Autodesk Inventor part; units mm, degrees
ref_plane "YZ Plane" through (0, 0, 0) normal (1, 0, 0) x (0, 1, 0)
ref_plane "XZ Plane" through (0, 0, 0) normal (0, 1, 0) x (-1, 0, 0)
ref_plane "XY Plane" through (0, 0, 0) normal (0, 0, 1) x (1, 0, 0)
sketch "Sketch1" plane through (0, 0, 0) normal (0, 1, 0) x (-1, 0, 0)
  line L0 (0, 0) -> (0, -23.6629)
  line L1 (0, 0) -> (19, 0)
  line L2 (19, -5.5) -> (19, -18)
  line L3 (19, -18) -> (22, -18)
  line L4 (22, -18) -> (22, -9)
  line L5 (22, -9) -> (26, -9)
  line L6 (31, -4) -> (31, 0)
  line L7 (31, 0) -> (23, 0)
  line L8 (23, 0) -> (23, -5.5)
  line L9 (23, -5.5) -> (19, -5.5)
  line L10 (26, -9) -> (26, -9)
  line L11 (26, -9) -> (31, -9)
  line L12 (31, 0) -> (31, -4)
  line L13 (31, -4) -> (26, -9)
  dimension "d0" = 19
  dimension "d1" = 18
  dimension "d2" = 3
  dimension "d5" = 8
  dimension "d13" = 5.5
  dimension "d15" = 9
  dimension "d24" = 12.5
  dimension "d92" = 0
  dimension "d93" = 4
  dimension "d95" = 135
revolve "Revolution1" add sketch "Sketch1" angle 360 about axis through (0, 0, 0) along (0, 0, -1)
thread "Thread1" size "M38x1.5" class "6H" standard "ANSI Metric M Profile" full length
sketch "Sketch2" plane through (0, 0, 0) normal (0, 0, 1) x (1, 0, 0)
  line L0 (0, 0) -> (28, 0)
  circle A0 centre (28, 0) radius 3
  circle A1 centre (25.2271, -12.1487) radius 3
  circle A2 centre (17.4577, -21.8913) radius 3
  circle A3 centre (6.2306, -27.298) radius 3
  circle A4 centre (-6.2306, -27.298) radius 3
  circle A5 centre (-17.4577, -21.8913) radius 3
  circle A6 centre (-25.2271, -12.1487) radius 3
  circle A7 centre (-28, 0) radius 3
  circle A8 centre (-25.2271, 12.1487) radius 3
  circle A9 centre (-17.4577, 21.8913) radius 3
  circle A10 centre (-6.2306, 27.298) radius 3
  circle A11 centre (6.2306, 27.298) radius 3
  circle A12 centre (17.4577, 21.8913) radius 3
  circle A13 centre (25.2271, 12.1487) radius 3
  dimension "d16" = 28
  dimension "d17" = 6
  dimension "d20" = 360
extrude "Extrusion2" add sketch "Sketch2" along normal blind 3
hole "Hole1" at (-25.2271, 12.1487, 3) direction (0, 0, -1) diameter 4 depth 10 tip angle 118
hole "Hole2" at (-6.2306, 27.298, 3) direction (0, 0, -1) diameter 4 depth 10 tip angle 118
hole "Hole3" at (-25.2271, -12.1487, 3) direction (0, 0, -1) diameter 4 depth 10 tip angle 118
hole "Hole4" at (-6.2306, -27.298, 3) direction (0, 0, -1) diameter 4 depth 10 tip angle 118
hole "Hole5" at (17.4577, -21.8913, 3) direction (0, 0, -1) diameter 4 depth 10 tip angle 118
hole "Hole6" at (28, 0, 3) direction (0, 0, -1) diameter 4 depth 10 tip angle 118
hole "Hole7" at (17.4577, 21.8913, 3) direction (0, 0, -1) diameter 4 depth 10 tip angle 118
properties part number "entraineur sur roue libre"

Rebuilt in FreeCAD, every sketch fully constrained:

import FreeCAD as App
import Part
import Sketcher

V = App.Vector
Q = App.Units.Quantity

doc = App.newDocument("Part")
body = doc.addObject("PartDesign::Body", "Body")

sketch1 = body.newObject("Sketcher::SketchObject", "Sketch")
sketch1.AttachmentSupport = (doc.getObject("XZ_Plane"), [""])
sketch1.MapMode = "FlatFace"
sketch1.addGeometry(Part.LineSegment(V(-23, -5.5, 0), V(-19, -5.5, 0)), False)
sketch1.addGeometry(Part.LineSegment(V(-19, -5.5, 0), V(-19, -18, 0)), False)
sketch1.addGeometry(Part.LineSegment(V(-19, -18, 0), V(-22, -18, 0)), False)
sketch1.addGeometry(Part.LineSegment(V(-22, -18, 0), V(-22, -9, 0)), False)
sketch1.addGeometry(Part.LineSegment(V(-22, -9, 0), V(-26, -9, 0)), False)
sketch1.addGeometry(Part.LineSegment(V(-26, -9, 0), V(-31, -4, 0)), False)
sketch1.addGeometry(Part.LineSegment(V(-31, -4, 0), V(-31, 0, 0)), False)
sketch1.addGeometry(Part.LineSegment(V(-31, 0, 0), V(-23, 0, 0)), False)
sketch1.addGeometry(Part.LineSegment(V(-23, 0, 0), V(-23, -5.5, 0)), False)
sketch1.addConstraint(Sketcher.Constraint("Coincident", 0, 2, 1, 1))
sketch1.addConstraint(Sketcher.Constraint("Coincident", 1, 2, 2, 1))
sketch1.addConstraint(Sketcher.Constraint("Coincident", 2, 2, 3, 1))
sketch1.addConstraint(Sketcher.Constraint("Coincident", 3, 2, 4, 1))
sketch1.addConstraint(Sketcher.Constraint("Coincident", 4, 2, 5, 1))
sketch1.addConstraint(Sketcher.Constraint("Coincident", 5, 2, 6, 1))
sketch1.addConstraint(Sketcher.Constraint("Coincident", 6, 2, 7, 1))
sketch1.addConstraint(Sketcher.Constraint("Coincident", 7, 2, 8, 1))
sketch1.addConstraint(Sketcher.Constraint("Coincident", 8, 2, 0, 1))
sketch1.addConstraint(Sketcher.Constraint("Horizontal", 0))
sketch1.addConstraint(Sketcher.Constraint("Vertical", 1))
sketch1.addConstraint(Sketcher.Constraint("Horizontal", 2))
sketch1.addConstraint(Sketcher.Constraint("Vertical", 3))
sketch1.addConstraint(Sketcher.Constraint("Horizontal", 4))
sketch1.addConstraint(Sketcher.Constraint("Vertical", 6))
sketch1.addConstraint(Sketcher.Constraint("Horizontal", 7))
sketch1.addConstraint(Sketcher.Constraint("Vertical", 8))
sketch1.addConstraint(Sketcher.Constraint("PointOnObject", 6, 2, -1))
sketch1.addConstraint(Sketcher.Constraint("Equal", 0, 4))
sketch1.addConstraint(Sketcher.Constraint("Equal", 4, 6))
sketch1.addConstraint(Sketcher.Constraint("DistanceX", 0, 1, 0, 2, Q("4 mm")))
sketch1.addConstraint(Sketcher.Constraint("DistanceX", 2, 2, 2, 1, Q("3 mm")))
sketch1.addConstraint(Sketcher.Constraint("DistanceX", 7, 1, 7, 2, Q("8 mm")))
sketch1.addConstraint(Sketcher.Constraint("DistanceY", 3, 1, 3, 2, Q("9 mm")))
sketch1.addConstraint(Sketcher.Constraint("Angle", 5, Q("135 deg")))
sketch1.addConstraint(Sketcher.Constraint("DistanceY", 1, 2, 1, 1, Q("12.5 mm")))
sketch1.addConstraint(Sketcher.Constraint("DistanceX", 0, 2, -1, 1, Q("19 mm")))
revolution = body.newObject("PartDesign::Revolution", "Revolution")
revolution.Profile = sketch1
revolution.ReferenceAxis = (sketch1, ["V_Axis"])
revolution.Angle = 360

sketch2 = body.newObject("Sketcher::SketchObject", "Sketch001")
sketch2.AttachmentSupport = (doc.getObject("XY_Plane"), [""])
sketch2.MapMode = "FlatFace"
sketch2.addGeometry(Part.Circle(V(28, 0, 0), V(0, 0, 1), 3), False)
sketch2.addGeometry(Part.Circle(V(25.2271, -12.1487, 0), V(0, 0, 1), 3), False)
sketch2.addGeometry(Part.Circle(V(17.4577, -21.8913, 0), V(0, 0, 1), 3), False)
sketch2.addGeometry(Part.Circle(V(6.2306, -27.298, 0), V(0, 0, 1), 3), False)
sketch2.addGeometry(Part.Circle(V(-6.2306, -27.298, 0), V(0, 0, 1), 3), False)
sketch2.addGeometry(Part.Circle(V(-17.4577, -21.8913, 0), V(0, 0, 1), 3), False)
sketch2.addGeometry(Part.Circle(V(-25.2271, -12.1487, 0), V(0, 0, 1), 3), False)
sketch2.addGeometry(Part.Circle(V(-28, 0, 0), V(0, 0, 1), 3), False)
sketch2.addGeometry(Part.Circle(V(-25.2271, 12.1487, 0), V(0, 0, 1), 3), False)
sketch2.addGeometry(Part.Circle(V(-17.4577, 21.8913, 0), V(0, 0, 1), 3), False)
sketch2.addGeometry(Part.Circle(V(-6.2306, 27.298, 0), V(0, 0, 1), 3), False)
sketch2.addGeometry(Part.Circle(V(6.2306, 27.298, 0), V(0, 0, 1), 3), False)
sketch2.addGeometry(Part.Circle(V(17.4577, 21.8913, 0), V(0, 0, 1), 3), False)
sketch2.addGeometry(Part.Circle(V(25.2271, 12.1487, 0), V(0, 0, 1), 3), False)
sketch2.addConstraint(Sketcher.Constraint("Equal", 0, 1))
sketch2.addConstraint(Sketcher.Constraint("Equal", 1, 2))
sketch2.addConstraint(Sketcher.Constraint("Equal", 2, 3))
sketch2.addConstraint(Sketcher.Constraint("Equal", 3, 4))
sketch2.addConstraint(Sketcher.Constraint("Equal", 4, 5))
sketch2.addConstraint(Sketcher.Constraint("Equal", 5, 6))
sketch2.addConstraint(Sketcher.Constraint("Equal", 6, 7))
sketch2.addConstraint(Sketcher.Constraint("Equal", 7, 8))
sketch2.addConstraint(Sketcher.Constraint("Equal", 8, 9))
sketch2.addConstraint(Sketcher.Constraint("Equal", 9, 10))
sketch2.addConstraint(Sketcher.Constraint("Equal", 10, 11))
sketch2.addConstraint(Sketcher.Constraint("Equal", 11, 12))
sketch2.addConstraint(Sketcher.Constraint("Equal", 12, 13))
sketch2.addConstraint(Sketcher.Constraint("Symmetric", 0, 3, 7, 3, -1, 1))
sketch2.addConstraint(Sketcher.Constraint("Symmetric", 1, 3, 8, 3, -1, 1))
sketch2.addConstraint(Sketcher.Constraint("Symmetric", 2, 3, 9, 3, -1, 1))
sketch2.addConstraint(Sketcher.Constraint("Symmetric", 3, 3, 10, 3, -1, 1))
sketch2.addConstraint(Sketcher.Constraint("Symmetric", 4, 3, 11, 3, -1, 1))
sketch2.addConstraint(Sketcher.Constraint("Symmetric", 5, 3, 12, 3, -1, 1))
sketch2.addConstraint(Sketcher.Constraint("Symmetric", 6, 3, 13, 3, -1, 1))
sketch2.addConstraint(Sketcher.Constraint("Symmetric", 3, 3, 4, 3, -2))
sketch2.addConstraint(Sketcher.Constraint("Symmetric", 2, 3, 5, 3, -2))
sketch2.addConstraint(Sketcher.Constraint("Symmetric", 1, 3, 6, 3, -2))
sketch2.addConstraint(Sketcher.Constraint("PointOnObject", 0, 3, -1))
sketch2.addConstraint(Sketcher.Constraint("Diameter", 0, Q("6 mm")))
sketch2.addConstraint(Sketcher.Constraint("DistanceX", -1, 1, 0, 3, Q("28 mm")))
sketch2.addConstraint(Sketcher.Constraint("DistanceY", 5, 3, 8, 3, Q("34.04 mm")))
sketch2.addConstraint(Sketcher.Constraint("DistanceX", -1, 1, 1, 3, Q("25.227 mm")))
sketch2.addConstraint(Sketcher.Constraint("DistanceY", 3, 3, -1, 1, Q("27.298 mm")))
sketch2.addConstraint(Sketcher.Constraint("DistanceX", 3, 3, 2, 3, Q("11.227 mm")))
sketch2.addConstraint(Sketcher.Constraint("DistanceY", 1, 3, -1, 1, Q("12.1487 mm")))
sketch2.addConstraint(Sketcher.Constraint("DistanceX", -1, 1, 2, 3, Q("17.4577 mm")))
pad1 = body.newObject("PartDesign::Pad", "Pad")
pad1.Profile = sketch2
pad1.Length = 3

sketch3 = body.newObject("Sketcher::SketchObject", "Sketch002")
sketch3.AttachmentSupport = (doc.getObject("XY_Plane"), [""])
sketch3.MapMode = "FlatFace"
sketch3.AttachmentOffset = App.Placement(V(0, 0, 3), App.Rotation())
sketch3.addGeometry(Part.Circle(V(-25.2271, 12.1487, 0), V(0, 0, 1), 2), False)
sketch3.addConstraint(Sketcher.Constraint("Diameter", 0, Q("4 mm")))
sketch3.addConstraint(Sketcher.Constraint("DistanceX", 0, 3, -1, 1, Q("25.227 mm")))
sketch3.addConstraint(Sketcher.Constraint("DistanceY", -1, 1, 0, 3, Q("12.1487 mm")))
doc.recompute()
hole = body.newObject("PartDesign::Hole", "Hole")
hole.Profile = sketch3
hole.ThreadType = "None"
hole.Diameter = 4
hole.DepthType = "Dimension"
hole.Depth = 10
hole.DrillPoint = "Angled"
hole.DrillPointAngle = 118

sketch4 = body.newObject("Sketcher::SketchObject", "Sketch003")
sketch4.AttachmentSupport = (doc.getObject("XY_Plane"), [""])
sketch4.MapMode = "FlatFace"
sketch4.AttachmentOffset = App.Placement(V(0, 0, 3), App.Rotation())
sketch4.addGeometry(Part.Circle(V(-6.2306, 27.298, 0), V(0, 0, 1), 2), False)
sketch4.addConstraint(Sketcher.Constraint("Diameter", 0, Q("4 mm")))
sketch4.addConstraint(Sketcher.Constraint("DistanceY", -1, 1, 0, 3, Q("27.298 mm")))
sketch4.addConstraint(Sketcher.Constraint("DistanceX", 0, 3, -1, 1, Q("6.2306 mm")))
doc.recompute()
hole2 = body.newObject("PartDesign::Hole", "Hole001")
hole2.Profile = sketch4
hole2.ThreadType = "None"
hole2.Diameter = 4
hole2.DepthType = "Dimension"
hole2.Depth = 10
hole2.DrillPoint = "Angled"
hole2.DrillPointAngle = 118

sketch5 = body.newObject("Sketcher::SketchObject", "Sketch004")
sketch5.AttachmentSupport = (doc.getObject("XY_Plane"), [""])
sketch5.MapMode = "FlatFace"
sketch5.AttachmentOffset = App.Placement(V(0, 0, 3), App.Rotation())
sketch5.addGeometry(Part.Circle(V(-25.2271, -12.1487, 0), V(0, 0, 1), 2), False)
sketch5.addConstraint(Sketcher.Constraint("Diameter", 0, Q("4 mm")))
sketch5.addConstraint(Sketcher.Constraint("DistanceX", 0, 3, -1, 1, Q("25.227 mm")))
sketch5.addConstraint(Sketcher.Constraint("DistanceY", 0, 3, -1, 1, Q("12.1487 mm")))
doc.recompute()
hole3 = body.newObject("PartDesign::Hole", "Hole002")
hole3.Profile = sketch5
hole3.ThreadType = "None"
hole3.Diameter = 4
hole3.DepthType = "Dimension"
hole3.Depth = 10
hole3.DrillPoint = "Angled"
hole3.DrillPointAngle = 118

sketch6 = body.newObject("Sketcher::SketchObject", "Sketch005")
sketch6.AttachmentSupport = (doc.getObject("XY_Plane"), [""])
sketch6.MapMode = "FlatFace"
sketch6.AttachmentOffset = App.Placement(V(0, 0, 3), App.Rotation())
sketch6.addGeometry(Part.Circle(V(-6.2306, -27.298, 0), V(0, 0, 1), 2), False)
sketch6.addConstraint(Sketcher.Constraint("Diameter", 0, Q("4 mm")))
sketch6.addConstraint(Sketcher.Constraint("DistanceY", 0, 3, -1, 1, Q("27.298 mm")))
sketch6.addConstraint(Sketcher.Constraint("DistanceX", 0, 3, -1, 1, Q("6.2306 mm")))
doc.recompute()
hole4 = body.newObject("PartDesign::Hole", "Hole003")
hole4.Profile = sketch6
hole4.ThreadType = "None"
hole4.Diameter = 4
hole4.DepthType = "Dimension"
hole4.Depth = 10
hole4.DrillPoint = "Angled"
hole4.DrillPointAngle = 118

sketch7 = body.newObject("Sketcher::SketchObject", "Sketch006")
sketch7.AttachmentSupport = (doc.getObject("XY_Plane"), [""])
sketch7.MapMode = "FlatFace"
sketch7.AttachmentOffset = App.Placement(V(0, 0, 3), App.Rotation())
sketch7.addGeometry(Part.Circle(V(17.4577, -21.8913, 0), V(0, 0, 1), 2), False)
sketch7.addConstraint(Sketcher.Constraint("Diameter", 0, Q("4 mm")))
sketch7.addConstraint(Sketcher.Constraint("DistanceX", -1, 1, 0, 3, Q("17.4577 mm")))
sketch7.addConstraint(Sketcher.Constraint("DistanceY", 0, 3, -1, 1, Q("21.8913 mm")))
doc.recompute()
hole5 = body.newObject("PartDesign::Hole", "Hole004")
hole5.Profile = sketch7
hole5.ThreadType = "None"
hole5.Diameter = 4
hole5.DepthType = "Dimension"
hole5.Depth = 10
hole5.DrillPoint = "Angled"
hole5.DrillPointAngle = 118

sketch8 = body.newObject("Sketcher::SketchObject", "Sketch007")
sketch8.AttachmentSupport = (doc.getObject("XY_Plane"), [""])
sketch8.MapMode = "FlatFace"
sketch8.AttachmentOffset = App.Placement(V(0, 0, 3), App.Rotation())
sketch8.addGeometry(Part.Circle(V(28, 0, 0), V(0, 0, 1), 2), False)
sketch8.addConstraint(Sketcher.Constraint("PointOnObject", 0, 3, -1))
sketch8.addConstraint(Sketcher.Constraint("Diameter", 0, Q("4 mm")))
sketch8.addConstraint(Sketcher.Constraint("DistanceX", -1, 1, 0, 3, Q("28 mm")))
doc.recompute()
hole6 = body.newObject("PartDesign::Hole", "Hole005")
hole6.Profile = sketch8
hole6.ThreadType = "None"
hole6.Diameter = 4
hole6.DepthType = "Dimension"
hole6.Depth = 10
hole6.DrillPoint = "Angled"
hole6.DrillPointAngle = 118

sketch9 = body.newObject("Sketcher::SketchObject", "Sketch008")
sketch9.AttachmentSupport = (doc.getObject("XY_Plane"), [""])
sketch9.MapMode = "FlatFace"
sketch9.AttachmentOffset = App.Placement(V(0, 0, 3), App.Rotation())
sketch9.addGeometry(Part.Circle(V(17.4577, 21.8913, 0), V(0, 0, 1), 2), False)
sketch9.addConstraint(Sketcher.Constraint("Diameter", 0, Q("4 mm")))
sketch9.addConstraint(Sketcher.Constraint("DistanceX", -1, 1, 0, 3, Q("17.4577 mm")))
sketch9.addConstraint(Sketcher.Constraint("DistanceY", -1, 1, 0, 3, Q("21.8913 mm")))
doc.recompute()
hole7 = body.newObject("PartDesign::Hole", "Hole006")
hole7.Profile = sketch9
hole7.ThreadType = "None"
hole7.Diameter = 4
hole7.DepthType = "Dimension"
hole7.Depth = 10
hole7.DrillPoint = "Angled"
hole7.DrillPointAngle = 118

doc.recompute()
